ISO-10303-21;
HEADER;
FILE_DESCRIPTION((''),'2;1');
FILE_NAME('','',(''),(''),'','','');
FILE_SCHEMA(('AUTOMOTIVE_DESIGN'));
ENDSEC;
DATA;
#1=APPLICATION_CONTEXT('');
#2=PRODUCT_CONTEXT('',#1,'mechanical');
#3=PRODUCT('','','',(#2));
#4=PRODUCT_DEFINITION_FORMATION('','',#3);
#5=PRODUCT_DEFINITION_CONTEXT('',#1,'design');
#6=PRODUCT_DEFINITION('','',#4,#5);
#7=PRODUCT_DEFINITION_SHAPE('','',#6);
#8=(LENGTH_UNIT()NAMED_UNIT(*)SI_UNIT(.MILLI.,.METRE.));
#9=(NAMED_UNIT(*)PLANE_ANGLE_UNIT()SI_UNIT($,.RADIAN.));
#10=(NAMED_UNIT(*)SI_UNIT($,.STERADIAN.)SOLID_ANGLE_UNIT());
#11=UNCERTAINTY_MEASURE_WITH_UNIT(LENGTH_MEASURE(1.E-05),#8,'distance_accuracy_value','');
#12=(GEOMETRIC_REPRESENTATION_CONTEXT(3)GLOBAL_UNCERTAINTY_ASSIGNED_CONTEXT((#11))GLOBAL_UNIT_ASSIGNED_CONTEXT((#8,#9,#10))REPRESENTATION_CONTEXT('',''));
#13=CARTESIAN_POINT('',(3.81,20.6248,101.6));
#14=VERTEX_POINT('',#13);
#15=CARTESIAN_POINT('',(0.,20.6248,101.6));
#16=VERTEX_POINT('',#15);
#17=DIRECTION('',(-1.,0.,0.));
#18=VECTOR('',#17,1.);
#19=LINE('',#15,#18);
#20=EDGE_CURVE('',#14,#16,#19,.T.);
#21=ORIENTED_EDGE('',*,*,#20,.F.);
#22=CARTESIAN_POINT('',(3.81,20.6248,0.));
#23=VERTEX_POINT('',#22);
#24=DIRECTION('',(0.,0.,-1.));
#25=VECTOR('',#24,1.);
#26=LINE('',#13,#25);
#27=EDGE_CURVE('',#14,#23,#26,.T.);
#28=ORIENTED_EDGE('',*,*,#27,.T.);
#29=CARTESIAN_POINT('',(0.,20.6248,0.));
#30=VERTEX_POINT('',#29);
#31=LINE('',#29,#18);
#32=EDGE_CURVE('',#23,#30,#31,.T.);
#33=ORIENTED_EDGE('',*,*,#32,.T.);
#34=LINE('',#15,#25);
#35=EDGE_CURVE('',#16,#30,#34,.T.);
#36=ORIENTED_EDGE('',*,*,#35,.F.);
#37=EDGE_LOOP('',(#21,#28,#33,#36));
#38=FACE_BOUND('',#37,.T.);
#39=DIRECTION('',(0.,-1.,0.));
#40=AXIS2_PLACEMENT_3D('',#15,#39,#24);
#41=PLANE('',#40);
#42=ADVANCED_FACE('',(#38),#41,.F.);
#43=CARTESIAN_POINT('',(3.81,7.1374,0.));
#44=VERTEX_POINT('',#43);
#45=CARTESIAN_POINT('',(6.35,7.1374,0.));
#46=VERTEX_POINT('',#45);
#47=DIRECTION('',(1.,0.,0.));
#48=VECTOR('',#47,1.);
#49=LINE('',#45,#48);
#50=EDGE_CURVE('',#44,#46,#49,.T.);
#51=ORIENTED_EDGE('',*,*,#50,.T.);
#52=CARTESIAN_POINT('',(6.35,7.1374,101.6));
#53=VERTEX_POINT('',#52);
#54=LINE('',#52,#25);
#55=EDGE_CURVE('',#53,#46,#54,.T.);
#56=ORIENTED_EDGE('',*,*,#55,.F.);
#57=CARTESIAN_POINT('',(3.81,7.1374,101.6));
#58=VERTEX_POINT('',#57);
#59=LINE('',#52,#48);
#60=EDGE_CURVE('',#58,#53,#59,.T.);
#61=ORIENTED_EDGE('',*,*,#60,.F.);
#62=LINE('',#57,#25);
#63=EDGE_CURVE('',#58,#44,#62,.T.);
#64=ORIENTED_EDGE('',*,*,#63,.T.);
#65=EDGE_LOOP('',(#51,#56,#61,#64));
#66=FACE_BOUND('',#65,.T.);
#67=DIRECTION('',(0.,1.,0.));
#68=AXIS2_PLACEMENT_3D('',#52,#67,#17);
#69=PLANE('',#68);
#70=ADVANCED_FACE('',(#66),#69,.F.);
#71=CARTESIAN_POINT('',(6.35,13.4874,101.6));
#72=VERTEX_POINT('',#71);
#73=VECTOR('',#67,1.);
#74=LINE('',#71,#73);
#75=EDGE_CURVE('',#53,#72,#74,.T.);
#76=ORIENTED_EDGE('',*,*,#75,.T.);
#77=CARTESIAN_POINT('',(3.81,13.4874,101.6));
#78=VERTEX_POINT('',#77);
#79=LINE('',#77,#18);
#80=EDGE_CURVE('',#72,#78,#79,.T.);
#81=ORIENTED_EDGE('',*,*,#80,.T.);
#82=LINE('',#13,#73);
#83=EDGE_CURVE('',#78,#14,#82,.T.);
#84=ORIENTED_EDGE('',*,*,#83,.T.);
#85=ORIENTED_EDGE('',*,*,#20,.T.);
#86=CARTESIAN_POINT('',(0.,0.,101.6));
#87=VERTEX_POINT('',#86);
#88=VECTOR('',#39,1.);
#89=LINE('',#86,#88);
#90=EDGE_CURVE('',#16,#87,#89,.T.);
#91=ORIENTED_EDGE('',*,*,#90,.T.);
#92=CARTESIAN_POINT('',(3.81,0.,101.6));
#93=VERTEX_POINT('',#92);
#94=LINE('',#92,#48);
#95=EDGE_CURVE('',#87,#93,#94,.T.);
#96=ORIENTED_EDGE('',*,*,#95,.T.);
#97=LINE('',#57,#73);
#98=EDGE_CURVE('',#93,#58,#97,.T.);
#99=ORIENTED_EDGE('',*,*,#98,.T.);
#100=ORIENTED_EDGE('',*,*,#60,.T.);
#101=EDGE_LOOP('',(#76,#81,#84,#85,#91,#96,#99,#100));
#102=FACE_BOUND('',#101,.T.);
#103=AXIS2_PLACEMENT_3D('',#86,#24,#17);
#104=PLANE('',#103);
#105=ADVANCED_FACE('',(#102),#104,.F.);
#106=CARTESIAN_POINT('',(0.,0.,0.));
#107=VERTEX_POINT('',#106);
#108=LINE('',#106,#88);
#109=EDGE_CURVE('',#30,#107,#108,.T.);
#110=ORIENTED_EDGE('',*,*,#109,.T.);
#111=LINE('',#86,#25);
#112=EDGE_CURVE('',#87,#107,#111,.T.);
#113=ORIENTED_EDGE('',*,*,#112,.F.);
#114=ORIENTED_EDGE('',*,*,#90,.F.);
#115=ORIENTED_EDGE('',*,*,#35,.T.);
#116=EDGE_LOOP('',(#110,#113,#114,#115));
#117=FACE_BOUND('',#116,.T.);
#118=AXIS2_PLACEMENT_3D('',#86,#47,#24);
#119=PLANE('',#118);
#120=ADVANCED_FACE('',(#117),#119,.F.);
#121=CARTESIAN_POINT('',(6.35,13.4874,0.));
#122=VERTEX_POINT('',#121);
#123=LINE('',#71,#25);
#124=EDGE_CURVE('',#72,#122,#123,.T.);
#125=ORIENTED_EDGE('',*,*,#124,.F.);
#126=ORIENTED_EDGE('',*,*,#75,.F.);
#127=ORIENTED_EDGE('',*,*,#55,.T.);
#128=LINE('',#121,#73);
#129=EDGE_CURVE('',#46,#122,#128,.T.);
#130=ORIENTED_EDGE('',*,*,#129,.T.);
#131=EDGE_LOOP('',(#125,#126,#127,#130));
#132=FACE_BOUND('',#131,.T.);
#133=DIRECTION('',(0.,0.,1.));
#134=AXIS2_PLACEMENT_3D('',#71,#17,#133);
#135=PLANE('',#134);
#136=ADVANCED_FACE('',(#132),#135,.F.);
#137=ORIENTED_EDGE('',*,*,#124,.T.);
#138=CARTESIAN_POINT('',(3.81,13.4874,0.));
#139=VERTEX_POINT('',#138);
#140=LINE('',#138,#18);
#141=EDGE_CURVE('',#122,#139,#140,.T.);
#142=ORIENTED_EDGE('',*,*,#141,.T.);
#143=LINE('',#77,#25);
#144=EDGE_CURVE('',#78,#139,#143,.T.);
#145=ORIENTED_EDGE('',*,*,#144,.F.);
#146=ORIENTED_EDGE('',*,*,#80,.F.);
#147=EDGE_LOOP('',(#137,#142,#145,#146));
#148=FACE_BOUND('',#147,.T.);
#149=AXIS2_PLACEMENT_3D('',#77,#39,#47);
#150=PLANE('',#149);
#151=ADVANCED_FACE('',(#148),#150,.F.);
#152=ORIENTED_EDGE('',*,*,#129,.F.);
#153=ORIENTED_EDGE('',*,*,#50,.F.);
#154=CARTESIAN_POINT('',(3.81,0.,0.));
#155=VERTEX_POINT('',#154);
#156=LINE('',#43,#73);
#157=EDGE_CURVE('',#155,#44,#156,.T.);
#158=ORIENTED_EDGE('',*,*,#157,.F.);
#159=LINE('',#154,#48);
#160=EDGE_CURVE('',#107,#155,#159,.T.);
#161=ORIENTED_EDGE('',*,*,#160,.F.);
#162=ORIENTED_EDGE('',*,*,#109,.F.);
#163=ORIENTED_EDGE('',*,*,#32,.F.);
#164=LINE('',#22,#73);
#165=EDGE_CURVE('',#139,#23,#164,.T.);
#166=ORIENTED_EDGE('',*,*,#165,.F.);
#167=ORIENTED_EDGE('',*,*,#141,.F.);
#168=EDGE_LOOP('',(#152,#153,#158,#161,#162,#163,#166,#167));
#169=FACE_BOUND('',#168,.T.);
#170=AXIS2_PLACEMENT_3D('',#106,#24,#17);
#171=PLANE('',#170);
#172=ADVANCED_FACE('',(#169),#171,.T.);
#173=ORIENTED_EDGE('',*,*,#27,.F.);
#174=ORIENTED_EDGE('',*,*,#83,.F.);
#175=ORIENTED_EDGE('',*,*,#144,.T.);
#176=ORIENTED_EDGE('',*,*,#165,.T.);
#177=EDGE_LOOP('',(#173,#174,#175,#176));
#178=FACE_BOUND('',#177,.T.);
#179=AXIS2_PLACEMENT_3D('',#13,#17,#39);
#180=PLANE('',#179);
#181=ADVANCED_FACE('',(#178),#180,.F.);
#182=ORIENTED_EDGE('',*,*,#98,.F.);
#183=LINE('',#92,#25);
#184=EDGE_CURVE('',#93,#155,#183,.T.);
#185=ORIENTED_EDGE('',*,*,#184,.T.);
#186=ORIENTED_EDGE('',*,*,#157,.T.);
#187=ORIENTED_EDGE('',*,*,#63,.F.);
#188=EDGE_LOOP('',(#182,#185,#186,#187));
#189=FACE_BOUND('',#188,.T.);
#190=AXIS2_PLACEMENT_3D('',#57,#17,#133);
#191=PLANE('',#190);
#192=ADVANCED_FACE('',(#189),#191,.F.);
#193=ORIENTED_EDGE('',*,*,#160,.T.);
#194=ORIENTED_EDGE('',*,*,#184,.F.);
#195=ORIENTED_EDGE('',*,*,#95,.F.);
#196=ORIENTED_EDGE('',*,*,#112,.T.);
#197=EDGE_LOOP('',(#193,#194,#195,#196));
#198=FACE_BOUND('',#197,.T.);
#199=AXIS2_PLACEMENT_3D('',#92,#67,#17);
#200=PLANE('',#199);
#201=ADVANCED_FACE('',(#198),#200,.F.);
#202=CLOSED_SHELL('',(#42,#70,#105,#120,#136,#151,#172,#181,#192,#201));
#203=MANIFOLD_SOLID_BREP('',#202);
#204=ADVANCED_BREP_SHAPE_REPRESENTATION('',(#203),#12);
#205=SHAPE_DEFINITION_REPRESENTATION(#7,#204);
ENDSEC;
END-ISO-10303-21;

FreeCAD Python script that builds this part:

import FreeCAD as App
import Part
import Sketcher
from FreeCAD import Vector
Q = App.Units.Quantity

doc = App.newDocument("Part")
body = doc.addObject("PartDesign::Body", "Body")

sketch1 = body.newObject("Sketcher::SketchObject", "Sketch")
sketch1.AttachmentSupport = (doc.getObject("XY_Plane"), [""])
sketch1.MapMode = "FlatFace"
sketch1.addGeometry(Part.LineSegment(Vector(0, 20.6, 0), Vector(0, 0, 0)), False)
sketch1.addGeometry(Part.LineSegment(Vector(0, 0, 0), Vector(3.8, 0, 0)), False)
sketch1.addGeometry(Part.LineSegment(Vector(3.8, 0, 0), Vector(3.8, 7.1, 0)), False)
sketch1.addGeometry(Part.LineSegment(Vector(3.8, 7.1, 0), Vector(6.3, 7.1, 0)), False)
sketch1.addGeometry(Part.LineSegment(Vector(6.3, 7.1, 0), Vector(6.3, 13.5, 0)), False)
sketch1.addGeometry(Part.LineSegment(Vector(6.3, 13.5, 0), Vector(3.8, 13.5, 0)), False)
sketch1.addGeometry(Part.LineSegment(Vector(3.8, 13.5, 0), Vector(3.8, 20.6, 0)), False)
sketch1.addGeometry(Part.LineSegment(Vector(3.8, 20.6, 0), Vector(0, 20.6, 0)), False)
sketch1.addConstraint(Sketcher.Constraint("Coincident", 0, 2, 1, 1))
sketch1.addConstraint(Sketcher.Constraint("Coincident", 1, 2, 2, 1))
sketch1.addConstraint(Sketcher.Constraint("Coincident", 2, 2, 3, 1))
sketch1.addConstraint(Sketcher.Constraint("Coincident", 3, 2, 4, 1))
sketch1.addConstraint(Sketcher.Constraint("Coincident", 4, 2, 5, 1))
sketch1.addConstraint(Sketcher.Constraint("Coincident", 5, 2, 6, 1))
sketch1.addConstraint(Sketcher.Constraint("Coincident", 6, 2, 7, 1))
sketch1.addConstraint(Sketcher.Constraint("Coincident", 7, 2, 0, 1))
sketch1.addConstraint(Sketcher.Constraint("Vertical", 0))
sketch1.addConstraint(Sketcher.Constraint("Horizontal", 1))
sketch1.addConstraint(Sketcher.Constraint("Vertical", 2))
sketch1.addConstraint(Sketcher.Constraint("Horizontal", 3))
sketch1.addConstraint(Sketcher.Constraint("Vertical", 4))
sketch1.addConstraint(Sketcher.Constraint("Horizontal", 5))
sketch1.addConstraint(Sketcher.Constraint("Vertical", 6))
sketch1.addConstraint(Sketcher.Constraint("Horizontal", 7))
sketch1.addConstraint(Sketcher.Constraint("Coincident", 0, 2, -1, 1))
sketch1.addConstraint(Sketcher.Constraint("Vertical", 2, 2, 5, 2))
sketch1.addConstraint(Sketcher.Constraint("Equal", 2, 6))
sketch1.addConstraint(Sketcher.Constraint("DistanceX", 3, 1, 3, 2, Q("0.1 in")))
sketch1.addConstraint(Sketcher.Constraint("DistanceX", 1, 1, 1, 2, Q("0.15 in")))
sketch1.addConstraint(Sketcher.Constraint("DistanceY", 4, 1, 4, 2, Q("0.25 in")))
sketch1.addConstraint(Sketcher.Constraint("DistanceY", 0, 2, 0, 1, Q("0.812 in")))
pad1 = body.newObject("PartDesign::Pad", "Pad")
pad1.Profile = sketch1
pad1.Length = Q("4 in")

doc.recompute()
